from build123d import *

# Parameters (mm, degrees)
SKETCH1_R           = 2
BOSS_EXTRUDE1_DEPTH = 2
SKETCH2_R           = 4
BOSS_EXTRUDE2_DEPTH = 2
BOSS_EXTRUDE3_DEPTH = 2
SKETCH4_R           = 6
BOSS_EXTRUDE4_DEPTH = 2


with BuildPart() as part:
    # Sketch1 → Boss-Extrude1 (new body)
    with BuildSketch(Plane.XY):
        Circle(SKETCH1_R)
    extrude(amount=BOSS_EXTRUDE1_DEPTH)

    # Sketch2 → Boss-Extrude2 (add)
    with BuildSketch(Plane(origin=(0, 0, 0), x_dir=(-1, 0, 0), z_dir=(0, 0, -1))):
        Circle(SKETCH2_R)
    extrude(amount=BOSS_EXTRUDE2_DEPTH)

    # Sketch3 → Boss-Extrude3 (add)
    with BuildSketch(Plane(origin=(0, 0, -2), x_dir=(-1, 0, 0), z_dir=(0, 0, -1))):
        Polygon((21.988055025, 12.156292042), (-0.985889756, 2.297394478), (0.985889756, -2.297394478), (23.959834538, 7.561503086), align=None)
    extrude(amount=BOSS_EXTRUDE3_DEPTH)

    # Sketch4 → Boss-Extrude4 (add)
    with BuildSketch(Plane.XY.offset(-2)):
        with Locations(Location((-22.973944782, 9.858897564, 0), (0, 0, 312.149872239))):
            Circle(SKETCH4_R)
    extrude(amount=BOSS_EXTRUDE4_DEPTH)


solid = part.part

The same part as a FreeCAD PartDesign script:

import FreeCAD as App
import Part
import Sketcher


def add_polygon(sketch, points):
    """Adds a closed chain of lines whose ends are joined by coincident constraints."""
    first, n = sketch.GeometryCount, len(points)
    for a, b in zip(points, points[1:] + points[:1]):
        sketch.addGeometry(Part.LineSegment(App.Vector(*a, 0), App.Vector(*b, 0)), False)
    for i in range(n):
        sketch.addConstraint(Sketcher.Constraint("Coincident", first + i, 2, first + (i + 1) % n, 1))

doc = App.newDocument("Part")
params = doc.addObject("Spreadsheet::Sheet", "Params")
for row, (alias, value) in enumerate([
    ("sketch1_diameter", "4 mm"),
    ("pad1_length", "2 mm"),
    ("sketch2_diameter", "8 mm"),
    ("pad2_length", "2 mm"),
    ("sketch3_length", "25 mm"),
    ("sketch3_length2", "5 mm"),
    ("pad3_length", "2 mm"),
    ("sketch4_diameter", "12 mm"),
    ("pad4_length", "2 mm"),
], start=1):
    params.set(f"A{row}", alias)
    params.set(f"B{row}", "=" + value)
    params.setAlias(f"B{row}", alias)

body = doc.addObject("PartDesign::Body", "Body")

# Sketch on XY plane
sketch1 = body.newObject("Sketcher::SketchObject", "Sketch")
sketch1.AttachmentSupport = (doc.getObject("XY_Plane"), [""])
sketch1.MapMode = "FlatFace"
sketch1.addGeometry(Part.Circle(App.Vector(0, 0, 0), App.Vector(0, 0, 1), 2), False)
sketch1.addConstraint(Sketcher.Constraint("Coincident", 0, 3, -1, 1))
sketch1.addConstraint(Sketcher.Constraint("Diameter", 0, 4.0))
sketch1.setExpression("Constraints[1]", "Params.sketch1_diameter")
pad1 = body.newObject("PartDesign::Pad", "Pad")
pad1.Profile = sketch1
pad1.setExpression("Length", "Params.pad1_length")

# Sketch on XY plane
sketch2 = body.newObject("Sketcher::SketchObject", "Sketch001")
sketch2.AttachmentSupport = (doc.getObject("XY_Plane"), [""])
sketch2.MapMode = "FlatFace"
sketch2.addGeometry(Part.Circle(App.Vector(0, 0, 0), App.Vector(0, 0, 1), 4), False)
sketch2.addConstraint(Sketcher.Constraint("Coincident", 0, 3, -1, 1))
sketch2.addConstraint(Sketcher.Constraint("Diameter", 0, 8.0))
sketch2.setExpression("Constraints[1]", "Params.sketch2_diameter")
pad2 = body.newObject("PartDesign::Pad", "Pad001")
pad2.Profile = sketch2
pad2.setExpression("Length", "Params.pad2_length")
pad2.Reversed = True

# Sketch on XY plane
sketch3 = body.newObject("Sketcher::SketchObject", "Sketch002")
sketch3.AttachmentSupport = (doc.getObject("XY_Plane"), [""])
sketch3.MapMode = "FlatFace"
sketch3.AttachmentOffset = App.Placement(App.Vector(0, 0, -2), App.Rotation())
add_polygon(sketch3, [(-21.988055, 12.156292), (0.98589, 2.297394), (-0.98589, -2.297394), (-23.959835, 7.561503)])  # lines 0-3
sketch3.addConstraint(Sketcher.Constraint("Symmetric", 0, 2, 1, 2, -1, 1))
sketch3.addConstraint(Sketcher.Constraint("Perpendicular", 0, 1))
sketch3.addConstraint(Sketcher.Constraint("Perpendicular", 1, 2))
sketch3.addConstraint(Sketcher.Constraint("Perpendicular", 2, 3))
sketch3.addConstraint(Sketcher.Constraint("Distance", 0, 25.0))
sketch3.addConstraint(Sketcher.Constraint("Distance", 1, 5.0))
sketch3.addConstraint(Sketcher.Constraint("DistanceX", -1, 1, 0, 2, 0.98589))
sketch3.setExpression("Constraints[8]", "Params.sketch3_length")
sketch3.setExpression("Constraints[9]", "Params.sketch3_length2")
pad3 = body.newObject("PartDesign::Pad", "Pad002")
pad3.Profile = sketch3
pad3.setExpression("Length", "Params.pad3_length")
pad3.Reversed = True

# Sketch on XY plane
sketch4 = body.newObject("Sketcher::SketchObject", "Sketch003")
sketch4.AttachmentSupport = (doc.getObject("XY_Plane"), [""])
sketch4.MapMode = "FlatFace"
sketch4.AttachmentOffset = App.Placement(App.Vector(0, 0, -2), App.Rotation())
sketch4.addGeometry(Part.Circle(App.Vector(-22.973945, 9.858898, 0), App.Vector(0, 0, 1), 6), False)
sketch4.addConstraint(Sketcher.Constraint("Diameter", 0, 12.0))
sketch4.addConstraint(Sketcher.Constraint("DistanceX", 0, 3, -1, 1, 22.973945))
sketch4.addConstraint(Sketcher.Constraint("DistanceY", -1, 1, 0, 3, 9.858898))
sketch4.setExpression("Constraints[0]", "Params.sketch4_diameter")
pad4 = body.newObject("PartDesign::Pad", "Pad003")
pad4.Profile = sketch4
pad4.setExpression("Length", "Params.pad4_length")

doc.recompute()
